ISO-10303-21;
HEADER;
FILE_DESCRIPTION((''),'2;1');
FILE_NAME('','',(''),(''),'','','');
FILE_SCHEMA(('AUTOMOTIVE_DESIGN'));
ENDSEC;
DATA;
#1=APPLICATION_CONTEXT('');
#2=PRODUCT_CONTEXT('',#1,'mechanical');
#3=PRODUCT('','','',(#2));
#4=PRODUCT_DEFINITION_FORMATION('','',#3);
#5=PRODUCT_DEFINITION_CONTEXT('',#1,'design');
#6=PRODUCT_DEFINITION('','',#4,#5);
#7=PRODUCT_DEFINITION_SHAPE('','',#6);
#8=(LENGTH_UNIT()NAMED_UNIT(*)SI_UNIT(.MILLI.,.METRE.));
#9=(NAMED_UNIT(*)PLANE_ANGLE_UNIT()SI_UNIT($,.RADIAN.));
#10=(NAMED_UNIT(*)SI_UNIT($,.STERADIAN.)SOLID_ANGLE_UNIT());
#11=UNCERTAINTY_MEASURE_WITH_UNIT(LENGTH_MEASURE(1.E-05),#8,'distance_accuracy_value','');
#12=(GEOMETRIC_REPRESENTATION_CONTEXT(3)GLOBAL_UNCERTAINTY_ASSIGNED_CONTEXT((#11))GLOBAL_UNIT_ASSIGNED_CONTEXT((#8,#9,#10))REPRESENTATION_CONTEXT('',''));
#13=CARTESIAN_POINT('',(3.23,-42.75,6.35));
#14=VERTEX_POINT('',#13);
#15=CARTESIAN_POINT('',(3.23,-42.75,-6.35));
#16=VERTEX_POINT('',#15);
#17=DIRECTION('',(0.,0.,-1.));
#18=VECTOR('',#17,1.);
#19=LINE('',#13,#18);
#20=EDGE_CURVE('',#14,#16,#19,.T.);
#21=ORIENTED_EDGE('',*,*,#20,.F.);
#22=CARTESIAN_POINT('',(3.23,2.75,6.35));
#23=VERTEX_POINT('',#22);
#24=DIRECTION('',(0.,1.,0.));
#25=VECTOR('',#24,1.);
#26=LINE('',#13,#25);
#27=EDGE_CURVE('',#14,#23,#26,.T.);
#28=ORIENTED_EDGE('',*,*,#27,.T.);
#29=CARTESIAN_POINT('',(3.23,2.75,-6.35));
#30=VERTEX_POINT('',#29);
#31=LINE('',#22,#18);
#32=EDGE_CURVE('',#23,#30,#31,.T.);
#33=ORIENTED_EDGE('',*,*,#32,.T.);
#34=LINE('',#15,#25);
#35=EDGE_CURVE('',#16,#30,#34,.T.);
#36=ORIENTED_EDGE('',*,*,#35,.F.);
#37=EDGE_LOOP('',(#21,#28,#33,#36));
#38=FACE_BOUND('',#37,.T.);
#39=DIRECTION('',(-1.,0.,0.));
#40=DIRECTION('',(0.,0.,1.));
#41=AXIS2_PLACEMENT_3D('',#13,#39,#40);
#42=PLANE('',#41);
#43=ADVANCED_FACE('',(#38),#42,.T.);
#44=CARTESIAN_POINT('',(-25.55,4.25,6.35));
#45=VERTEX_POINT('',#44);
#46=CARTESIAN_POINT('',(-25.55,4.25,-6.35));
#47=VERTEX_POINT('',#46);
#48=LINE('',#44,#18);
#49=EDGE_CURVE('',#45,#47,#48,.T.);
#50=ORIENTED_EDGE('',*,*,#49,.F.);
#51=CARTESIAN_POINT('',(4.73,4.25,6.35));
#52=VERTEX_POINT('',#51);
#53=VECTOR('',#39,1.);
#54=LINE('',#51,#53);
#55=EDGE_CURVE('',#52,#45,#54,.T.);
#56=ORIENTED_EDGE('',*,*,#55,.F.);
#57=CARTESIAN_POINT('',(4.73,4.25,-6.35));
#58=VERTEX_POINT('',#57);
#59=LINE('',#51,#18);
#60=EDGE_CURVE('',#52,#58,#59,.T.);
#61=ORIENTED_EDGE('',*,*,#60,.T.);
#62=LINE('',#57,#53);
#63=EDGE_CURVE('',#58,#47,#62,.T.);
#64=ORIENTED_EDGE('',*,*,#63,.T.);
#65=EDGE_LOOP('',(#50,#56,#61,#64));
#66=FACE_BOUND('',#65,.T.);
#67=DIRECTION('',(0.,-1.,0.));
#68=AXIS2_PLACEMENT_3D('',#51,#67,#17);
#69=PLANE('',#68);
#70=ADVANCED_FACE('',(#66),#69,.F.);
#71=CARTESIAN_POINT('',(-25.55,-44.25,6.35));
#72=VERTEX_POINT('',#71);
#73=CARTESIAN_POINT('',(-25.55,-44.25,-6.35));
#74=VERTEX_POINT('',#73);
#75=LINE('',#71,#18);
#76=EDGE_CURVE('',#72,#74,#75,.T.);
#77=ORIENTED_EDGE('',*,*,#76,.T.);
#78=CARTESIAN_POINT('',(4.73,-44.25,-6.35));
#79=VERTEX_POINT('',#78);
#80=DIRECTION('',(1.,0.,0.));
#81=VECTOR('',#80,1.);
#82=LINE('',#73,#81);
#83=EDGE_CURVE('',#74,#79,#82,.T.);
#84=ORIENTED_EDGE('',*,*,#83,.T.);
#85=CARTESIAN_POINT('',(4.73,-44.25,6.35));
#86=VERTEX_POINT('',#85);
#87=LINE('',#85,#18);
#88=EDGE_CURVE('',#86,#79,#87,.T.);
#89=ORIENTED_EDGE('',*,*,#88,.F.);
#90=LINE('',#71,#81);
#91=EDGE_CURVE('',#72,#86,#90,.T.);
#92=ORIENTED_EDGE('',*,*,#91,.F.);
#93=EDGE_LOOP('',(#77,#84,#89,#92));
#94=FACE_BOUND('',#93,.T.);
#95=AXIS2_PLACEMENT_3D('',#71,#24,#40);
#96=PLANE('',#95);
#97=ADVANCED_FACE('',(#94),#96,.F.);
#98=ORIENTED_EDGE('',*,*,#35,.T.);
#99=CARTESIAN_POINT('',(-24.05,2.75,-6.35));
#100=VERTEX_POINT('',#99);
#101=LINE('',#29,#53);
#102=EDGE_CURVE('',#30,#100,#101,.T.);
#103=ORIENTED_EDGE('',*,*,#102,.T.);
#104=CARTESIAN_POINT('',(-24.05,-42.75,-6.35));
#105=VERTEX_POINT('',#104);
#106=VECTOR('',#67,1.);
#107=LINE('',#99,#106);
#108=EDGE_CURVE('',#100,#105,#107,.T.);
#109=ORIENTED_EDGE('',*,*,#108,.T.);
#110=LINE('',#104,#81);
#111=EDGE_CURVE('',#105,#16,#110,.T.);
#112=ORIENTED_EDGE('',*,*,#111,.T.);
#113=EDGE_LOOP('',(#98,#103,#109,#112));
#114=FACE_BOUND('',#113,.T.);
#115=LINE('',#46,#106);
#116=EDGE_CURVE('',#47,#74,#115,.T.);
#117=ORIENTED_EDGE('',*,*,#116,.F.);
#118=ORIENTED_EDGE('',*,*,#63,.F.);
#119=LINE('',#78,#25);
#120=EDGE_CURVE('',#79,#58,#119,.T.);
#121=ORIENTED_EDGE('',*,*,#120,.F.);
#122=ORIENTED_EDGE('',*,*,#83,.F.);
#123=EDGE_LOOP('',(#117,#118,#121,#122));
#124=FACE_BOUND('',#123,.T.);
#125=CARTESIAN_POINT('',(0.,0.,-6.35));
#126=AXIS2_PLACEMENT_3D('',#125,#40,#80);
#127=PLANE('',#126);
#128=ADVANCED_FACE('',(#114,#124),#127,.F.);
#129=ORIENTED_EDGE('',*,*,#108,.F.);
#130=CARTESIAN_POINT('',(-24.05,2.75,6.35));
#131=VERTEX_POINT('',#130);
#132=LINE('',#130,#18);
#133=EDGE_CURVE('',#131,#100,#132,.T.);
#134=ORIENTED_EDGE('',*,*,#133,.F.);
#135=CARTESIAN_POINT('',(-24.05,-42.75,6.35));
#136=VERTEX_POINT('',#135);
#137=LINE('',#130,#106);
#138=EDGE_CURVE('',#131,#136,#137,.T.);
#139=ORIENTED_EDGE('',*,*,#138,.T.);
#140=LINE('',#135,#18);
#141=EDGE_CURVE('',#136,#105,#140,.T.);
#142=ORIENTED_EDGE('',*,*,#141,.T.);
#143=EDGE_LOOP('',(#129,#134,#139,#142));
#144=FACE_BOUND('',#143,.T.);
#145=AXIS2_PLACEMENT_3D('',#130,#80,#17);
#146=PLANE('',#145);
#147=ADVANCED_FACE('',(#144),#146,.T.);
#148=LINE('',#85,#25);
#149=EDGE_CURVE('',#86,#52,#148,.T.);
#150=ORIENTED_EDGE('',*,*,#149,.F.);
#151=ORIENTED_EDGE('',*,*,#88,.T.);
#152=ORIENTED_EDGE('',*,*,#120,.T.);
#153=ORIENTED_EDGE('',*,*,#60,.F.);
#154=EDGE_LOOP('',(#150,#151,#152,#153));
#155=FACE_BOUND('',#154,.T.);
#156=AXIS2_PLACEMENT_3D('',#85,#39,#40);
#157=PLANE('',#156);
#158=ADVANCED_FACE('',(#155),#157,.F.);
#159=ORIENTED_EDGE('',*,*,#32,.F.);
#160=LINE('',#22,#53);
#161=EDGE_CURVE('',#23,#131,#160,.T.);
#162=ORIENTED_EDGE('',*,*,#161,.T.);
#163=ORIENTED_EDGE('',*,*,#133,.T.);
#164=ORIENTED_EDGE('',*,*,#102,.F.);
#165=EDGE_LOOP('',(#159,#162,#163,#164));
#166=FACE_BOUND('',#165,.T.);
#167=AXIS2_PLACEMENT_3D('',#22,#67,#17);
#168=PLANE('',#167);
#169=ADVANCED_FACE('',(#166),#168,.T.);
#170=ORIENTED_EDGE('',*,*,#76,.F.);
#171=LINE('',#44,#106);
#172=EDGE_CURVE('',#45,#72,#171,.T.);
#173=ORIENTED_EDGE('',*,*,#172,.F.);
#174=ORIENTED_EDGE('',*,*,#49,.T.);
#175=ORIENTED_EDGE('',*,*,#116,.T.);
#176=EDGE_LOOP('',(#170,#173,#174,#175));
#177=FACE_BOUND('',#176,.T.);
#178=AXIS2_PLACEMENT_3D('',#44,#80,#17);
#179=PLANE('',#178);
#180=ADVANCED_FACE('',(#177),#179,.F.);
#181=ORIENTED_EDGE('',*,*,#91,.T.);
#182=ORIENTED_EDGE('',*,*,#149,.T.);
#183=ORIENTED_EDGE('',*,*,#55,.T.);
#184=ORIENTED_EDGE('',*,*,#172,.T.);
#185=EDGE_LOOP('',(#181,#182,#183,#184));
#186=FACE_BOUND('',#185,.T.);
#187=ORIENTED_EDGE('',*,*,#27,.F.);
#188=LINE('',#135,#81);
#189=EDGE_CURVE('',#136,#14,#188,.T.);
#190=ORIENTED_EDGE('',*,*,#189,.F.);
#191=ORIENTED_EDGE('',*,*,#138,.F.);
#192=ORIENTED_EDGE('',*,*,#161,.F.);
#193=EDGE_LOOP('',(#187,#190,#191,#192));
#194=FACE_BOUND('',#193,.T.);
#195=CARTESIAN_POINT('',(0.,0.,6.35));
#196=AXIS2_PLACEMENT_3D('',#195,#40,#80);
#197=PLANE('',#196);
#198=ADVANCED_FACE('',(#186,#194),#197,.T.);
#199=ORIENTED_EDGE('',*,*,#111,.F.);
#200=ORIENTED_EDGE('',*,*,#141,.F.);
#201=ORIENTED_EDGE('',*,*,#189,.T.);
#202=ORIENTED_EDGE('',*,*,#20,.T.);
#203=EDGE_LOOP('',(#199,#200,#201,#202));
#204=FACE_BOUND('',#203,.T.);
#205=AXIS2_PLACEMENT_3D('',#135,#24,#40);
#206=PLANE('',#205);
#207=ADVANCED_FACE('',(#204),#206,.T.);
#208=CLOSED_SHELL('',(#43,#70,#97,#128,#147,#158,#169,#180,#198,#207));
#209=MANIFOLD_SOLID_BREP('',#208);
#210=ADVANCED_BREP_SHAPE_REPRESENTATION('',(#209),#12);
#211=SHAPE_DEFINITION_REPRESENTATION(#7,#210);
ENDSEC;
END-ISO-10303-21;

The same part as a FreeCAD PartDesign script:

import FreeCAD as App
import Part
import Sketcher


def add_polygon(sketch, points):
    """Adds a closed chain of lines whose ends are joined by coincident constraints."""
    first, n = sketch.GeometryCount, len(points)
    for a, b in zip(points, points[1:] + points[:1]):
        sketch.addGeometry(Part.LineSegment(App.Vector(*a, 0), App.Vector(*b, 0)), False)
    for i in range(n):
        sketch.addConstraint(Sketcher.Constraint("Coincident", first + i, 2, first + (i + 1) % n, 1))

doc = App.newDocument("Part")
body = doc.addObject("PartDesign::Body", "Body")

# Sketch on XY plane
sketch1 = body.newObject("Sketcher::SketchObject", "Sketch")
sketch1.AttachmentSupport = (doc.getObject("XY_Plane"), [""])
sketch1.MapMode = "FlatFace"
add_polygon(sketch1, [(-26, 4), (-26, -44), (5, -44), (5, 4)])  # lines 0-3
add_polygon(sketch1, [(3, -43), (-24, -43), (-24, 3), (3, 3)])  # lines 4-7
sketch1.addConstraint([
    Sketcher.Constraint("Vertical", 0),
    Sketcher.Constraint("Horizontal", 1),
    Sketcher.Constraint("Vertical", 2),
    Sketcher.Constraint("Horizontal", 3),
    Sketcher.Constraint("Horizontal", 4),
    Sketcher.Constraint("Vertical", 5),
    Sketcher.Constraint("Horizontal", 6),
    Sketcher.Constraint("Vertical", 7),
    Sketcher.Constraint("DistanceY", 0, 2, 0, 1, 48.5),
    Sketcher.Constraint("DistanceY", 5, 1, 5, 2, 45.5),
    Sketcher.Constraint("DistanceY", 4, 2, 3, 2, 47.0),
    Sketcher.Constraint("DistanceX", 1, 1, 1, 2, 30.28),
    Sketcher.Constraint("DistanceX", 4, 2, 4, 1, 27.28),
    Sketcher.Constraint("DistanceX", 0, 2, 4, 2, 1.5),
    Sketcher.Constraint("DistanceX", 0, 2, -1, 1, 25.55),
    Sketcher.Constraint("DistanceY", 0, 2, -1, 1, 44.25),
])
pad1 = body.newObject("PartDesign::Pad", "Pad")
pad1.Profile = sketch1
pad1.Length = 12.7
pad1.Midplane = True

doc.recompute()
